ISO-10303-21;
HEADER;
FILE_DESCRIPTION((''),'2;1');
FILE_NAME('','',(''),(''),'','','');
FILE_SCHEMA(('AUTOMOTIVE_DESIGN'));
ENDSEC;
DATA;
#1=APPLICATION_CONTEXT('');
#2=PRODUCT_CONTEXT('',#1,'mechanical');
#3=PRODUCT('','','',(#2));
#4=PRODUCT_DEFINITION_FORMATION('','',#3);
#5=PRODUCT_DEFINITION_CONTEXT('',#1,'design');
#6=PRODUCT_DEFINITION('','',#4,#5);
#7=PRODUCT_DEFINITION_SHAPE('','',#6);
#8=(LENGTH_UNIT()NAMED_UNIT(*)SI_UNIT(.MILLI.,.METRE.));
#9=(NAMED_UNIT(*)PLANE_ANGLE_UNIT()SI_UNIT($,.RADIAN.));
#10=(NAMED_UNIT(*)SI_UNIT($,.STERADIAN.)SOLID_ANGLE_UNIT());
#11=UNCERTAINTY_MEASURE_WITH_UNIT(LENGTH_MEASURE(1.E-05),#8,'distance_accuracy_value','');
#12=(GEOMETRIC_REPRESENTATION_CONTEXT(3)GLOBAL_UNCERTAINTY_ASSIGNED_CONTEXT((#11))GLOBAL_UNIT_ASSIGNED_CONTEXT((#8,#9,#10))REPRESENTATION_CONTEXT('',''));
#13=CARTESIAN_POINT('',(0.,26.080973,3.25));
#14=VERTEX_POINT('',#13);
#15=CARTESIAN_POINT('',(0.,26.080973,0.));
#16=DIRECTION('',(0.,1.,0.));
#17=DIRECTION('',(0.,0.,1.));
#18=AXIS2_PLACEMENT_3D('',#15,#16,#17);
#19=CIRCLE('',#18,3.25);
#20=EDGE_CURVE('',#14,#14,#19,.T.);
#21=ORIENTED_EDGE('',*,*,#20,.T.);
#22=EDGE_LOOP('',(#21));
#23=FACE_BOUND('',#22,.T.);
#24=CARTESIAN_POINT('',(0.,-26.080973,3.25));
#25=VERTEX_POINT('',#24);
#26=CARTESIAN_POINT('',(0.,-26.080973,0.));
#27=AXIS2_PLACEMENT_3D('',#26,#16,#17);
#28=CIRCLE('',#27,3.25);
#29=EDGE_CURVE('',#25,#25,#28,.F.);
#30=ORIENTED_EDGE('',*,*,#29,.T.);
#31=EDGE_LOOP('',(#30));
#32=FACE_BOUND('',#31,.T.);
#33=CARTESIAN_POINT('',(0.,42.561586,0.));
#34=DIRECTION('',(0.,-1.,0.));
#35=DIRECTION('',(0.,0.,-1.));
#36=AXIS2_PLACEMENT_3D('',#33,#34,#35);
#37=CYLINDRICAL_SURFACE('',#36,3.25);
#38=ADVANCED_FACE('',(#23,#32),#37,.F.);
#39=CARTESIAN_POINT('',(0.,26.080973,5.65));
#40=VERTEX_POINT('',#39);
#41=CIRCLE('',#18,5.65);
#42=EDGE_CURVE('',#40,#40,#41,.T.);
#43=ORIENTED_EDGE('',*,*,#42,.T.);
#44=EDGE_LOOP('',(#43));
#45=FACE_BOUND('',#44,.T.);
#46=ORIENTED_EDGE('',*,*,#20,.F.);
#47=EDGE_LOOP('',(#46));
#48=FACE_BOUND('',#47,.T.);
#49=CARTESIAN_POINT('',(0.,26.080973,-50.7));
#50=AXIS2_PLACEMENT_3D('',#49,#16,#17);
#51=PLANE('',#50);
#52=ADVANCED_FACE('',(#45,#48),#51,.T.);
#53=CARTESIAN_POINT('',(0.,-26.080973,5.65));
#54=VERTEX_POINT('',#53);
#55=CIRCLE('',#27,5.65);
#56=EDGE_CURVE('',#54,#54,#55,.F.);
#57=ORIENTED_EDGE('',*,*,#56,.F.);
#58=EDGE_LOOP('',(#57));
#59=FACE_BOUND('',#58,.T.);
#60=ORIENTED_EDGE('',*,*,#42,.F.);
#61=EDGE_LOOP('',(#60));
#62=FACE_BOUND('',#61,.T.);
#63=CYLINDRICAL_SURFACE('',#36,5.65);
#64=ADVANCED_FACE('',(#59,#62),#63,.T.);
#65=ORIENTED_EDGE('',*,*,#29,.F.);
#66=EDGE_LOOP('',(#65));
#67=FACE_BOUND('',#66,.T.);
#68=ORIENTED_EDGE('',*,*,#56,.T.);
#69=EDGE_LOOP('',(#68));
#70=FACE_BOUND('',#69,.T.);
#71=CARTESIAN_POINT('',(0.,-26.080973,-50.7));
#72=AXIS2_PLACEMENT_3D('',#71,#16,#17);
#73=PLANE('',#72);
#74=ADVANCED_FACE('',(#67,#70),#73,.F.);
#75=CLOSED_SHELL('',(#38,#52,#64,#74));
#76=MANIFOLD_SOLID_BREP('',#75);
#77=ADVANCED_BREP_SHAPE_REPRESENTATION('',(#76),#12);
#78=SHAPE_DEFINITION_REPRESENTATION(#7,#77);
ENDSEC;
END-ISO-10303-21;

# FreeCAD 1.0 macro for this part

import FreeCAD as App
import Part
import Sketcher
from FreeCAD import Vector

doc = App.newDocument("Part")
body = doc.addObject("PartDesign::Body", "Body")

# Sketch on XZ plane
sketch1 = doc.addObject("Sketcher::SketchObject", "Sketch")
body.addObject(sketch1)
sketch1.AttachmentSupport = (doc.XZ_Plane, [""])
sketch1.MapMode = "FlatFace"
sketch1.addGeometry([
    Part.Circle(Vector(0, 0, 0), Vector(0, 0, 1), 5.7),
    Part.Circle(Vector(0, 0, 0), Vector(0, 0, 1), 3.2),
], False)
sketch1.addConstraint([
    Sketcher.Constraint("Coincident", 0, 3, -1, 1),
    Sketcher.Constraint("Coincident", 1, 3, -1, 1),
    Sketcher.Constraint("Diameter", 0, 11.3),
    Sketcher.Constraint("Diameter", 1, 6.5),
])
pad1 = doc.addObject("PartDesign::Pad", "Pad")
body.addObject(pad1)
pad1.Profile = sketch1
pad1.Type = "TwoLengths"
pad1.Length = 26.080973
pad1.Length2 = 26.080973
pad1.Reversed = True

doc.recompute()
